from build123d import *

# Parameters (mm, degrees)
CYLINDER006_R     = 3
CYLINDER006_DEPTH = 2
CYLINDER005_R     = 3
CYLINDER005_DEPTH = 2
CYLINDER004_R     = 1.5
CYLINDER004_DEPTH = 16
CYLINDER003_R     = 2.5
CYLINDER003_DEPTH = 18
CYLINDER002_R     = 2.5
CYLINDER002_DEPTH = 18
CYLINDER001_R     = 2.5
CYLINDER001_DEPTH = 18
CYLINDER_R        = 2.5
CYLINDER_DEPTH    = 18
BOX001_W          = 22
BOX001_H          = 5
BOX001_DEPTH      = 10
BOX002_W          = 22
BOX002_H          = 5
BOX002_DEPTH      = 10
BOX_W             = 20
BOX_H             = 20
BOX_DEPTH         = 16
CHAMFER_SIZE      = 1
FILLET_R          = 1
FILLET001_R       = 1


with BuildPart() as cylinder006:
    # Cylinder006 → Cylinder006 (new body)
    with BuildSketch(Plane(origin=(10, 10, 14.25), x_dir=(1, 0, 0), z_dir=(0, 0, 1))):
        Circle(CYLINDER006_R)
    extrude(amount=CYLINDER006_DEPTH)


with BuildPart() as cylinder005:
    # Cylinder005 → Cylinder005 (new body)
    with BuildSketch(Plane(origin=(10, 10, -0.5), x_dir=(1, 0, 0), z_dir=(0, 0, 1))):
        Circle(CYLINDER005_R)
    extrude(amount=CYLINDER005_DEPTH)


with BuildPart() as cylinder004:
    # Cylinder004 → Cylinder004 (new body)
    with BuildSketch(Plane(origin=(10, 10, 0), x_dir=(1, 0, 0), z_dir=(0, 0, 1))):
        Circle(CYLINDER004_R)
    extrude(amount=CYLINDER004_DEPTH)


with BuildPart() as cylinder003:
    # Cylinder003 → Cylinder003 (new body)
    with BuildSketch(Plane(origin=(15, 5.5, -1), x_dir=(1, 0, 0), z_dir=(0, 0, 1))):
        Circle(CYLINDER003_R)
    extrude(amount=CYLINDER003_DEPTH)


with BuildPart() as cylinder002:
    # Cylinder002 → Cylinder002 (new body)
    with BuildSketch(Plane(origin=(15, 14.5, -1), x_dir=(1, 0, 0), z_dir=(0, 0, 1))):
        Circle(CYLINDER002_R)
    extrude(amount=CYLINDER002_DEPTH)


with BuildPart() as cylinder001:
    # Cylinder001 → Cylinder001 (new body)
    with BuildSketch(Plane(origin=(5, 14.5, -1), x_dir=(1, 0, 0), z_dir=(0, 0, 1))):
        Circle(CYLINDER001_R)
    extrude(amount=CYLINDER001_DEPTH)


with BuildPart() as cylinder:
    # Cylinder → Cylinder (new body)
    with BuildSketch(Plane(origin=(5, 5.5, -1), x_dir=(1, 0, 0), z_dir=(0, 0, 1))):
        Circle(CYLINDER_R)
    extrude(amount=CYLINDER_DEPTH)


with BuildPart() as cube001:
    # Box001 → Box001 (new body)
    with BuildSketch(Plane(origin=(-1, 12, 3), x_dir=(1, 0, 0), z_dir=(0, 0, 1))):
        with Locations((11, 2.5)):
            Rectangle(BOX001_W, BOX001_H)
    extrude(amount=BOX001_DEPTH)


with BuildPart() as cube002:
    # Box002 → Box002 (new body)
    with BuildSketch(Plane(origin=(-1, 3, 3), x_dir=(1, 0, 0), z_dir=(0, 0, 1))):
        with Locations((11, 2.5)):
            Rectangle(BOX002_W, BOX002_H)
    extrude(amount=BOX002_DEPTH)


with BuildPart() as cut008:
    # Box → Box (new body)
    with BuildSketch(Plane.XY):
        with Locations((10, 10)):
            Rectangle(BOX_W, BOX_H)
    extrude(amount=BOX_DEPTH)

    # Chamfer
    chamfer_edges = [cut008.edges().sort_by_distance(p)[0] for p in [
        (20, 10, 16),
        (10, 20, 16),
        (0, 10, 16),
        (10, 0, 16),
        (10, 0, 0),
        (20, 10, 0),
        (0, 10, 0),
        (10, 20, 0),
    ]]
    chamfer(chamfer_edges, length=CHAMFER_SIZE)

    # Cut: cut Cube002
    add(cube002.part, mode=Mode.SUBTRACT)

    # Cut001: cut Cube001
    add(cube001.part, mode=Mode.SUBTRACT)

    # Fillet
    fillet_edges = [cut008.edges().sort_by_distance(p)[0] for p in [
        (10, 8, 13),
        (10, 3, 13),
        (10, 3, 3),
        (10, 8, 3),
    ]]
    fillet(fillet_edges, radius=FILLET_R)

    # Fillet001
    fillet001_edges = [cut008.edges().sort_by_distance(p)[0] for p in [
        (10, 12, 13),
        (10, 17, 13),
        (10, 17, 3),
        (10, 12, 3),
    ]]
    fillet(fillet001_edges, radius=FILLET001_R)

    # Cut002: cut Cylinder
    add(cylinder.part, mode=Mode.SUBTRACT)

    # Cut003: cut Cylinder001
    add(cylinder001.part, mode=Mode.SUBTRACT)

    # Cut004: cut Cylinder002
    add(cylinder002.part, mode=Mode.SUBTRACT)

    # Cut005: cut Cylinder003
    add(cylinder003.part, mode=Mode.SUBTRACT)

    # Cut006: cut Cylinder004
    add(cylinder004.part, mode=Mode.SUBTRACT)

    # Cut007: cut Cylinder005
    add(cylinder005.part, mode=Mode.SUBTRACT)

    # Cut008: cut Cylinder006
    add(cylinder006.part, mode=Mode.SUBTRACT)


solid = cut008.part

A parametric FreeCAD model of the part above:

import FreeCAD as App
import Part
import Sketcher

V = App.Vector


def edges_at(feature, points):
    """Names of the edges that pass closest to the given points."""
    edges = feature.Shape.Edges
    near = lambda p: min(range(len(edges)), key=lambda i: edges[i].distToShape(Part.Vertex(*p))[0])
    return sorted({f"Edge{near(p) + 1}" for p in points})


def add_polygon(sketch, points):
    """Adds a closed chain of lines whose ends are joined by coincident constraints."""
    first, n = sketch.GeometryCount, len(points)
    for a, b in zip(points, points[1:] + points[:1]):
        sketch.addGeometry(Part.LineSegment(App.Vector(*a, 0), App.Vector(*b, 0)), False)
    for i in range(n):
        sketch.addConstraint(Sketcher.Constraint("Coincident", first + i, 2, first + (i + 1) % n, 1))

doc = App.newDocument("Part")
body = doc.addObject("PartDesign::Body", "Body")

sketch1 = body.newObject("Sketcher::SketchObject", "Sketch")
sketch1.AttachmentSupport = (doc.getObject("XY_Plane"), [""])
sketch1.MapMode = "FlatFace"
sketch1.AttachmentOffset = App.Placement(V(0, 0, 14.25), App.Rotation())
sketch1.addGeometry(Part.Circle(V(10, 10, 0), V(0, 0, 1), 3), False)
sketch1.addConstraint([
    Sketcher.Constraint("Diameter", 0, 6.0),
    Sketcher.Constraint("DistanceX", -1, 1, 0, 3, 10.0),
    Sketcher.Constraint("DistanceY", -1, 1, 0, 3, 10.0),
])
pad1 = body.newObject("PartDesign::Pad", "Pad")
pad1.Profile = sketch1
pad1.Length = 2
body2 = doc.addObject("PartDesign::Body", "Body001")

sketch2 = body2.newObject("Sketcher::SketchObject", "Sketch001")
sketch2.AttachmentSupport = (doc.getObject("XY_Plane001"), [""])
sketch2.MapMode = "FlatFace"
sketch2.AttachmentOffset = App.Placement(V(0, 0, -0.5), App.Rotation())
sketch2.addGeometry(Part.Circle(V(10, 10, 0), V(0, 0, 1), 3), False)
sketch2.addConstraint([
    Sketcher.Constraint("Diameter", 0, 6.0),
    Sketcher.Constraint("DistanceX", -1, 1, 0, 3, 10.0),
    Sketcher.Constraint("DistanceY", -1, 1, 0, 3, 10.0),
])
pad2 = body2.newObject("PartDesign::Pad", "Pad001")
pad2.Profile = sketch2
pad2.Length = 2
body3 = doc.addObject("PartDesign::Body", "Body002")

sketch3 = body3.newObject("Sketcher::SketchObject", "Sketch002")
sketch3.AttachmentSupport = (doc.getObject("XY_Plane002"), [""])
sketch3.MapMode = "FlatFace"
sketch3.addGeometry(Part.Circle(V(10, 10, 0), V(0, 0, 1), 1.5), False)
sketch3.addConstraint([
    Sketcher.Constraint("Diameter", 0, 3.0),
    Sketcher.Constraint("DistanceX", -1, 1, 0, 3, 10.0),
    Sketcher.Constraint("DistanceY", -1, 1, 0, 3, 10.0),
])
pad3 = body3.newObject("PartDesign::Pad", "Pad002")
pad3.Profile = sketch3
pad3.Length = 16
body4 = doc.addObject("PartDesign::Body", "Body003")

sketch4 = body4.newObject("Sketcher::SketchObject", "Sketch003")
sketch4.AttachmentSupport = (doc.getObject("XY_Plane003"), [""])
sketch4.MapMode = "FlatFace"
sketch4.AttachmentOffset = App.Placement(V(0, 0, -1), App.Rotation())
sketch4.addGeometry(Part.Circle(V(15, 5.5, 0), V(0, 0, 1), 2.5), False)
sketch4.addConstraint([
    Sketcher.Constraint("Diameter", 0, 5.0),
    Sketcher.Constraint("DistanceX", -1, 1, 0, 3, 15.0),
    Sketcher.Constraint("DistanceY", -1, 1, 0, 3, 5.5),
])
pad4 = body4.newObject("PartDesign::Pad", "Pad003")
pad4.Profile = sketch4
pad4.Length = 18
body5 = doc.addObject("PartDesign::Body", "Body004")

sketch5 = body5.newObject("Sketcher::SketchObject", "Sketch004")
sketch5.AttachmentSupport = (doc.getObject("XY_Plane004"), [""])
sketch5.MapMode = "FlatFace"
sketch5.AttachmentOffset = App.Placement(V(0, 0, -1), App.Rotation())
sketch5.addGeometry(Part.Circle(V(15, 14.5, 0), V(0, 0, 1), 2.5), False)
sketch5.addConstraint([
    Sketcher.Constraint("Diameter", 0, 5.0),
    Sketcher.Constraint("DistanceX", -1, 1, 0, 3, 15.0),
    Sketcher.Constraint("DistanceY", -1, 1, 0, 3, 14.5),
])
pad5 = body5.newObject("PartDesign::Pad", "Pad004")
pad5.Profile = sketch5
pad5.Length = 18
body6 = doc.addObject("PartDesign::Body", "Body005")

sketch6 = body6.newObject("Sketcher::SketchObject", "Sketch005")
sketch6.AttachmentSupport = (doc.getObject("XY_Plane005"), [""])
sketch6.MapMode = "FlatFace"
sketch6.AttachmentOffset = App.Placement(V(0, 0, -1), App.Rotation())
sketch6.addGeometry(Part.Circle(V(5, 14.5, 0), V(0, 0, 1), 2.5), False)
sketch6.addConstraint([
    Sketcher.Constraint("Diameter", 0, 5.0),
    Sketcher.Constraint("DistanceX", -1, 1, 0, 3, 5.0),
    Sketcher.Constraint("DistanceY", -1, 1, 0, 3, 14.5),
])
pad6 = body6.newObject("PartDesign::Pad", "Pad005")
pad6.Profile = sketch6
pad6.Length = 18
body7 = doc.addObject("PartDesign::Body", "Body006")

sketch7 = body7.newObject("Sketcher::SketchObject", "Sketch006")
sketch7.AttachmentSupport = (doc.getObject("XY_Plane006"), [""])
sketch7.MapMode = "FlatFace"
sketch7.AttachmentOffset = App.Placement(V(0, 0, -1), App.Rotation())
sketch7.addGeometry(Part.Circle(V(5, 5.5, 0), V(0, 0, 1), 2.5), False)
sketch7.addConstraint([
    Sketcher.Constraint("Diameter", 0, 5.0),
    Sketcher.Constraint("DistanceX", -1, 1, 0, 3, 5.0),
    Sketcher.Constraint("DistanceY", -1, 1, 0, 3, 5.5),
])
pad7 = body7.newObject("PartDesign::Pad", "Pad006")
pad7.Profile = sketch7
pad7.Length = 18
body8 = doc.addObject("PartDesign::Body", "Body007")

sketch8 = body8.newObject("Sketcher::SketchObject", "Sketch007")
sketch8.AttachmentSupport = (doc.getObject("XY_Plane007"), [""])
sketch8.MapMode = "FlatFace"
sketch8.AttachmentOffset = App.Placement(V(0, 0, 3), App.Rotation())
add_polygon(sketch8, [(-1, 17), (-1, 12), (21, 12), (21, 17)])
sketch8.addConstraint([
    Sketcher.Constraint("Vertical", 0),
    Sketcher.Constraint("Horizontal", 1),
    Sketcher.Constraint("Vertical", 2),
    Sketcher.Constraint("Horizontal", 3),
    Sketcher.Constraint("DistanceX", 1, 1, 1, 2, 22.0),
    Sketcher.Constraint("DistanceY", 0, 2, 0, 1, 5.0),
    Sketcher.Constraint("DistanceX", 0, 2, -1, 1, 1.0),
    Sketcher.Constraint("DistanceY", -1, 1, 0, 2, 12.0),
])
pad8 = body8.newObject("PartDesign::Pad", "Pad007")
pad8.Profile = sketch8
pad8.Length = 10
body9 = doc.addObject("PartDesign::Body", "Body008")

sketch9 = body9.newObject("Sketcher::SketchObject", "Sketch008")
sketch9.AttachmentSupport = (doc.getObject("XY_Plane008"), [""])
sketch9.MapMode = "FlatFace"
sketch9.AttachmentOffset = App.Placement(V(0, 0, 3), App.Rotation())
add_polygon(sketch9, [(-1, 8), (-1, 3), (21, 3), (21, 8)])
sketch9.addConstraint([
    Sketcher.Constraint("Vertical", 0),
    Sketcher.Constraint("Horizontal", 1),
    Sketcher.Constraint("Vertical", 2),
    Sketcher.Constraint("Horizontal", 3),
    Sketcher.Constraint("DistanceX", 1, 1, 1, 2, 22.0),
    Sketcher.Constraint("DistanceY", 0, 2, 0, 1, 5.0),
    Sketcher.Constraint("DistanceX", 0, 2, -1, 1, 1.0),
    Sketcher.Constraint("DistanceY", -1, 1, 0, 2, 3.0),
])
pad9 = body9.newObject("PartDesign::Pad", "Pad008")
pad9.Profile = sketch9
pad9.Length = 10
body10 = doc.addObject("PartDesign::Body", "Body009")

sketch10 = body10.newObject("Sketcher::SketchObject", "Sketch009")
sketch10.AttachmentSupport = (doc.getObject("XY_Plane009"), [""])
sketch10.MapMode = "FlatFace"
add_polygon(sketch10, [(0, 20), (0, 0), (20, 0), (20, 20)])
sketch10.addConstraint([
    Sketcher.Constraint("Vertical", 0),
    Sketcher.Constraint("Horizontal", 1),
    Sketcher.Constraint("Vertical", 2),
    Sketcher.Constraint("Horizontal", 3),
    Sketcher.Constraint("Coincident", 0, 2, -1, 1),
    Sketcher.Constraint("Equal", 3, 0),
    Sketcher.Constraint("DistanceX", 1, 1, 1, 2, 20.0),
])
pad10 = body10.newObject("PartDesign::Pad", "Pad009")
pad10.Profile = sketch10
pad10.Length = 16
doc.recompute()

chamfer = body10.newObject("PartDesign::Chamfer", "Chamfer")
chamfer.Base = (pad10, edges_at(pad10, [
    (20, 10, 16),
    (10, 20, 16),
    (0, 10, 16),
    (10, 0, 16),
    (10, 0, 0),
    (20, 10, 0),
    (0, 10, 0),
    (10, 20, 0),
]))
chamfer.Size = 1
doc.recompute()

boolean = body10.newObject("PartDesign::Boolean", "Boolean")
boolean.Type = "Cut"
boolean.addObjects([body9])
doc.recompute()

boolean2 = body10.newObject("PartDesign::Boolean", "Boolean001")
boolean2.Type = "Cut"
boolean2.addObjects([body8])
doc.recompute()

fillet = body10.newObject("PartDesign::Fillet", "Fillet")
fillet.Base = (boolean2, edges_at(boolean2, [
    (10, 8, 13),
    (10, 3, 13),
    (10, 3, 3),
    (10, 8, 3),
]))
fillet.Radius = 1
doc.recompute()

fillet2 = body10.newObject("PartDesign::Fillet", "Fillet001")
fillet2.Base = (fillet, edges_at(fillet, [
    (10, 12, 13),
    (10, 17, 13),
    (10, 17, 3),
    (10, 12, 3),
]))
fillet2.Radius = 1
doc.recompute()

boolean3 = body10.newObject("PartDesign::Boolean", "Boolean002")
boolean3.Type = "Cut"
boolean3.addObjects([body7])
doc.recompute()

boolean4 = body10.newObject("PartDesign::Boolean", "Boolean003")
boolean4.Type = "Cut"
boolean4.addObjects([body6])
doc.recompute()

boolean5 = body10.newObject("PartDesign::Boolean", "Boolean004")
boolean5.Type = "Cut"
boolean5.addObjects([body5])
doc.recompute()

boolean6 = body10.newObject("PartDesign::Boolean", "Boolean005")
boolean6.Type = "Cut"
boolean6.addObjects([body4])
doc.recompute()

boolean7 = body10.newObject("PartDesign::Boolean", "Boolean006")
boolean7.Type = "Cut"
boolean7.addObjects([body3])
doc.recompute()

boolean8 = body10.newObject("PartDesign::Boolean", "Boolean007")
boolean8.Type = "Cut"
boolean8.addObjects([body2])
doc.recompute()

boolean9 = body10.newObject("PartDesign::Boolean", "Boolean008")
boolean9.Type = "Cut"
boolean9.addObjects([body])

doc.recompute()
